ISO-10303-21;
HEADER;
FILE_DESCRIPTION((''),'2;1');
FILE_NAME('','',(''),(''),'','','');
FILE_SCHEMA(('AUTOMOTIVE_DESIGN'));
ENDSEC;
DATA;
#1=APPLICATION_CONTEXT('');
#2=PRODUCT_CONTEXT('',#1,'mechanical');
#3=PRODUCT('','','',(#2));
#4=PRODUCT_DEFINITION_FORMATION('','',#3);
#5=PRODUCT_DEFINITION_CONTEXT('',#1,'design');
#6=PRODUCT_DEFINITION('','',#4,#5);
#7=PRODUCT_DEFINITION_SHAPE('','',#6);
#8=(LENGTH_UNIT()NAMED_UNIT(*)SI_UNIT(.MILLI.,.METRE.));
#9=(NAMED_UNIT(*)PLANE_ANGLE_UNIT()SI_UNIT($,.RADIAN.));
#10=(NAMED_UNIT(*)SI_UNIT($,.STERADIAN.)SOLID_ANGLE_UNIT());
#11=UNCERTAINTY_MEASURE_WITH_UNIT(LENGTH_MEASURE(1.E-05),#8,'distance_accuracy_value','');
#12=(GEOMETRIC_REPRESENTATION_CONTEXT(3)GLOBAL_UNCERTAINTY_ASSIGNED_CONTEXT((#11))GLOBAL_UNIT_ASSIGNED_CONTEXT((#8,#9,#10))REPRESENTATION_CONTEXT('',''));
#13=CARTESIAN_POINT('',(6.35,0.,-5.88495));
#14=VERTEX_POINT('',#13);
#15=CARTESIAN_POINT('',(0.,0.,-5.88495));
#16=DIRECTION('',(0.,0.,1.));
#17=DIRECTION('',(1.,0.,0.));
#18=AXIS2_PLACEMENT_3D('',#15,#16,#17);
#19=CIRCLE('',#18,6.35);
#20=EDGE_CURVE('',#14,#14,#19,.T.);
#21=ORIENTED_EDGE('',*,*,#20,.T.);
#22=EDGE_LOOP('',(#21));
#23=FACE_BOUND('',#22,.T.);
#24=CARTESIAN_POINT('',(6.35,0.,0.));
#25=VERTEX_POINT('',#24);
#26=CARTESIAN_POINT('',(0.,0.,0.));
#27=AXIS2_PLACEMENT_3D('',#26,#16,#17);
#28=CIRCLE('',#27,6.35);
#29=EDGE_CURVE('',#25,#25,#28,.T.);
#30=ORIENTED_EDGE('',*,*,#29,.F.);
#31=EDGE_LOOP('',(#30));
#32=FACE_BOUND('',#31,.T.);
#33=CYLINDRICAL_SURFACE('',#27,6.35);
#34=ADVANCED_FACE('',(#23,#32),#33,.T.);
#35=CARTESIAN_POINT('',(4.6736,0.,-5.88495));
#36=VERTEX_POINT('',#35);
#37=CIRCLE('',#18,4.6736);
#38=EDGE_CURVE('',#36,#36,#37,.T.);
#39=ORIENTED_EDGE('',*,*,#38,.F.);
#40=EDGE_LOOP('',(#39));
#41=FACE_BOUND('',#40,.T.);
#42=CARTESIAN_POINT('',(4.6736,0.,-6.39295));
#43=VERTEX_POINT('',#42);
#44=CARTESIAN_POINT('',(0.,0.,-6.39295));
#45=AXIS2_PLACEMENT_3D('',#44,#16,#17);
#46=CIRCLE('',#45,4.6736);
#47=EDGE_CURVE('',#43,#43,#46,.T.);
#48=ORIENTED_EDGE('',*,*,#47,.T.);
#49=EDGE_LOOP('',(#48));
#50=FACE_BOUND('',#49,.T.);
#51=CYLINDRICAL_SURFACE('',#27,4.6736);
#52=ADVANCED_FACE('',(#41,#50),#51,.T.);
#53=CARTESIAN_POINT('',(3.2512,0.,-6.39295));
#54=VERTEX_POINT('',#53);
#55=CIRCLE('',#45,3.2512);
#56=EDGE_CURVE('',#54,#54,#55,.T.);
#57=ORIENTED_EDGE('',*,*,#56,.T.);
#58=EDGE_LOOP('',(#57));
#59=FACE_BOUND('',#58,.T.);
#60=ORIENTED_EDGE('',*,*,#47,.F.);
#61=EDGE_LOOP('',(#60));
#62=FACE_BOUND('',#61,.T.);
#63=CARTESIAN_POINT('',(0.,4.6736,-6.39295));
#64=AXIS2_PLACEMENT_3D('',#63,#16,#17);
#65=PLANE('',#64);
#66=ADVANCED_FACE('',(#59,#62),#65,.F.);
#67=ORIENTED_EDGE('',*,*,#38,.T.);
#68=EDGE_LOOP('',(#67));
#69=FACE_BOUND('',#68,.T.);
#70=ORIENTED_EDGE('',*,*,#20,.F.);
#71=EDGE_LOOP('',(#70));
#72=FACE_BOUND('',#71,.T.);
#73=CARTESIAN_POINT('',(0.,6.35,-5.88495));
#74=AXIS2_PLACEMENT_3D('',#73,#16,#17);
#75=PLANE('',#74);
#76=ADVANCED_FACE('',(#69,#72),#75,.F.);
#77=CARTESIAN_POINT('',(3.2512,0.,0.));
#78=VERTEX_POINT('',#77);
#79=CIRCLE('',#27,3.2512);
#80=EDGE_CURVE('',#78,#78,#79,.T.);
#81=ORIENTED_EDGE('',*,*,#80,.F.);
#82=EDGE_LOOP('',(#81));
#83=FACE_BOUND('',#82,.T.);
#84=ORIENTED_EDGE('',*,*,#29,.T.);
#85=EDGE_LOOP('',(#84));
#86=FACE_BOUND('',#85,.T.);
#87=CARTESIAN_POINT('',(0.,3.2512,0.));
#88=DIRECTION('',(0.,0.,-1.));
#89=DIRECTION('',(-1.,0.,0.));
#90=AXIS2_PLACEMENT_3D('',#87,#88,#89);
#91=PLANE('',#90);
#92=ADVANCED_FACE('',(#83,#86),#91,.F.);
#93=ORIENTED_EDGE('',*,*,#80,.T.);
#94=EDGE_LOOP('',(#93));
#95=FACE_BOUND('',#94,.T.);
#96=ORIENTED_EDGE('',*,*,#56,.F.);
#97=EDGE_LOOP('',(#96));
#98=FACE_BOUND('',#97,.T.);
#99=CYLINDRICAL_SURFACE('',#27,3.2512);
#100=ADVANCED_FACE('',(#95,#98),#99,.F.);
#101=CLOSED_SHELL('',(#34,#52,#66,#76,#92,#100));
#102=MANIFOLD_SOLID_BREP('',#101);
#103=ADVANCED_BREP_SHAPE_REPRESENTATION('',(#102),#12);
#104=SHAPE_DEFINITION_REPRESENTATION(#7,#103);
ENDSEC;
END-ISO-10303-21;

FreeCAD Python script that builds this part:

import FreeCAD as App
import Part
import Sketcher
from FreeCAD import Vector
Q = App.Units.Quantity


def add_polygon(sketch, points):
    """Adds a closed chain of lines whose ends are joined by coincident constraints."""
    first, n = sketch.GeometryCount, len(points)
    for a, b in zip(points, points[1:] + points[:1]):
        sketch.addGeometry(Part.LineSegment(App.Vector(*a, 0), App.Vector(*b, 0)), False)
    for i in range(n):
        sketch.addConstraint(Sketcher.Constraint("Coincident", first + i, 2, first + (i + 1) % n, 1))

doc = App.newDocument("Part")
body = doc.addObject("PartDesign::Body", "Body")

# Sketch on YZ plane
sketch1 = body.newObject("Sketcher::SketchObject", "Sketch")
sketch1.AttachmentSupport = (doc.getObject("YZ_Plane"), [""])
sketch1.MapMode = "FlatFace"
add_polygon(sketch1, [(6.35, 0), (3.2512, 0), (3.2512, -6.39295), (4.6736, -6.39295), (4.6736, -5.88495), (6.35, -5.88495)])  # lines 0-5
sketch1.addConstraint([
    Sketcher.Constraint("Horizontal", 0),
    Sketcher.Constraint("Vertical", 1),
    Sketcher.Constraint("Horizontal", 2),
    Sketcher.Constraint("Vertical", 3),
    Sketcher.Constraint("Horizontal", 4),
    Sketcher.Constraint("Vertical", 5),
    Sketcher.Constraint("PointOnObject", 0, 2, -1),
    Sketcher.Constraint("DistanceY", 3, 1, 3, 2, Q("0.02 in")),
    Sketcher.Constraint("DistanceX", 0, 2, 0, 1, Q("0.122 in")),
    Sketcher.Constraint("DistanceX", 2, 1, 2, 2, Q("0.056 in")),
    Sketcher.Constraint("DistanceX", -1, 1, 4, 2, Q("0.25 in")),
    Sketcher.Constraint("DistanceY", 1, 2, 1, 1, 6.39295),
])
revolution = body.newObject("PartDesign::Revolution", "Revolution")
revolution.Profile = sketch1
revolution.ReferenceAxis = (sketch1, ["V_Axis"])
revolution.Angle = 360

doc.recompute()
